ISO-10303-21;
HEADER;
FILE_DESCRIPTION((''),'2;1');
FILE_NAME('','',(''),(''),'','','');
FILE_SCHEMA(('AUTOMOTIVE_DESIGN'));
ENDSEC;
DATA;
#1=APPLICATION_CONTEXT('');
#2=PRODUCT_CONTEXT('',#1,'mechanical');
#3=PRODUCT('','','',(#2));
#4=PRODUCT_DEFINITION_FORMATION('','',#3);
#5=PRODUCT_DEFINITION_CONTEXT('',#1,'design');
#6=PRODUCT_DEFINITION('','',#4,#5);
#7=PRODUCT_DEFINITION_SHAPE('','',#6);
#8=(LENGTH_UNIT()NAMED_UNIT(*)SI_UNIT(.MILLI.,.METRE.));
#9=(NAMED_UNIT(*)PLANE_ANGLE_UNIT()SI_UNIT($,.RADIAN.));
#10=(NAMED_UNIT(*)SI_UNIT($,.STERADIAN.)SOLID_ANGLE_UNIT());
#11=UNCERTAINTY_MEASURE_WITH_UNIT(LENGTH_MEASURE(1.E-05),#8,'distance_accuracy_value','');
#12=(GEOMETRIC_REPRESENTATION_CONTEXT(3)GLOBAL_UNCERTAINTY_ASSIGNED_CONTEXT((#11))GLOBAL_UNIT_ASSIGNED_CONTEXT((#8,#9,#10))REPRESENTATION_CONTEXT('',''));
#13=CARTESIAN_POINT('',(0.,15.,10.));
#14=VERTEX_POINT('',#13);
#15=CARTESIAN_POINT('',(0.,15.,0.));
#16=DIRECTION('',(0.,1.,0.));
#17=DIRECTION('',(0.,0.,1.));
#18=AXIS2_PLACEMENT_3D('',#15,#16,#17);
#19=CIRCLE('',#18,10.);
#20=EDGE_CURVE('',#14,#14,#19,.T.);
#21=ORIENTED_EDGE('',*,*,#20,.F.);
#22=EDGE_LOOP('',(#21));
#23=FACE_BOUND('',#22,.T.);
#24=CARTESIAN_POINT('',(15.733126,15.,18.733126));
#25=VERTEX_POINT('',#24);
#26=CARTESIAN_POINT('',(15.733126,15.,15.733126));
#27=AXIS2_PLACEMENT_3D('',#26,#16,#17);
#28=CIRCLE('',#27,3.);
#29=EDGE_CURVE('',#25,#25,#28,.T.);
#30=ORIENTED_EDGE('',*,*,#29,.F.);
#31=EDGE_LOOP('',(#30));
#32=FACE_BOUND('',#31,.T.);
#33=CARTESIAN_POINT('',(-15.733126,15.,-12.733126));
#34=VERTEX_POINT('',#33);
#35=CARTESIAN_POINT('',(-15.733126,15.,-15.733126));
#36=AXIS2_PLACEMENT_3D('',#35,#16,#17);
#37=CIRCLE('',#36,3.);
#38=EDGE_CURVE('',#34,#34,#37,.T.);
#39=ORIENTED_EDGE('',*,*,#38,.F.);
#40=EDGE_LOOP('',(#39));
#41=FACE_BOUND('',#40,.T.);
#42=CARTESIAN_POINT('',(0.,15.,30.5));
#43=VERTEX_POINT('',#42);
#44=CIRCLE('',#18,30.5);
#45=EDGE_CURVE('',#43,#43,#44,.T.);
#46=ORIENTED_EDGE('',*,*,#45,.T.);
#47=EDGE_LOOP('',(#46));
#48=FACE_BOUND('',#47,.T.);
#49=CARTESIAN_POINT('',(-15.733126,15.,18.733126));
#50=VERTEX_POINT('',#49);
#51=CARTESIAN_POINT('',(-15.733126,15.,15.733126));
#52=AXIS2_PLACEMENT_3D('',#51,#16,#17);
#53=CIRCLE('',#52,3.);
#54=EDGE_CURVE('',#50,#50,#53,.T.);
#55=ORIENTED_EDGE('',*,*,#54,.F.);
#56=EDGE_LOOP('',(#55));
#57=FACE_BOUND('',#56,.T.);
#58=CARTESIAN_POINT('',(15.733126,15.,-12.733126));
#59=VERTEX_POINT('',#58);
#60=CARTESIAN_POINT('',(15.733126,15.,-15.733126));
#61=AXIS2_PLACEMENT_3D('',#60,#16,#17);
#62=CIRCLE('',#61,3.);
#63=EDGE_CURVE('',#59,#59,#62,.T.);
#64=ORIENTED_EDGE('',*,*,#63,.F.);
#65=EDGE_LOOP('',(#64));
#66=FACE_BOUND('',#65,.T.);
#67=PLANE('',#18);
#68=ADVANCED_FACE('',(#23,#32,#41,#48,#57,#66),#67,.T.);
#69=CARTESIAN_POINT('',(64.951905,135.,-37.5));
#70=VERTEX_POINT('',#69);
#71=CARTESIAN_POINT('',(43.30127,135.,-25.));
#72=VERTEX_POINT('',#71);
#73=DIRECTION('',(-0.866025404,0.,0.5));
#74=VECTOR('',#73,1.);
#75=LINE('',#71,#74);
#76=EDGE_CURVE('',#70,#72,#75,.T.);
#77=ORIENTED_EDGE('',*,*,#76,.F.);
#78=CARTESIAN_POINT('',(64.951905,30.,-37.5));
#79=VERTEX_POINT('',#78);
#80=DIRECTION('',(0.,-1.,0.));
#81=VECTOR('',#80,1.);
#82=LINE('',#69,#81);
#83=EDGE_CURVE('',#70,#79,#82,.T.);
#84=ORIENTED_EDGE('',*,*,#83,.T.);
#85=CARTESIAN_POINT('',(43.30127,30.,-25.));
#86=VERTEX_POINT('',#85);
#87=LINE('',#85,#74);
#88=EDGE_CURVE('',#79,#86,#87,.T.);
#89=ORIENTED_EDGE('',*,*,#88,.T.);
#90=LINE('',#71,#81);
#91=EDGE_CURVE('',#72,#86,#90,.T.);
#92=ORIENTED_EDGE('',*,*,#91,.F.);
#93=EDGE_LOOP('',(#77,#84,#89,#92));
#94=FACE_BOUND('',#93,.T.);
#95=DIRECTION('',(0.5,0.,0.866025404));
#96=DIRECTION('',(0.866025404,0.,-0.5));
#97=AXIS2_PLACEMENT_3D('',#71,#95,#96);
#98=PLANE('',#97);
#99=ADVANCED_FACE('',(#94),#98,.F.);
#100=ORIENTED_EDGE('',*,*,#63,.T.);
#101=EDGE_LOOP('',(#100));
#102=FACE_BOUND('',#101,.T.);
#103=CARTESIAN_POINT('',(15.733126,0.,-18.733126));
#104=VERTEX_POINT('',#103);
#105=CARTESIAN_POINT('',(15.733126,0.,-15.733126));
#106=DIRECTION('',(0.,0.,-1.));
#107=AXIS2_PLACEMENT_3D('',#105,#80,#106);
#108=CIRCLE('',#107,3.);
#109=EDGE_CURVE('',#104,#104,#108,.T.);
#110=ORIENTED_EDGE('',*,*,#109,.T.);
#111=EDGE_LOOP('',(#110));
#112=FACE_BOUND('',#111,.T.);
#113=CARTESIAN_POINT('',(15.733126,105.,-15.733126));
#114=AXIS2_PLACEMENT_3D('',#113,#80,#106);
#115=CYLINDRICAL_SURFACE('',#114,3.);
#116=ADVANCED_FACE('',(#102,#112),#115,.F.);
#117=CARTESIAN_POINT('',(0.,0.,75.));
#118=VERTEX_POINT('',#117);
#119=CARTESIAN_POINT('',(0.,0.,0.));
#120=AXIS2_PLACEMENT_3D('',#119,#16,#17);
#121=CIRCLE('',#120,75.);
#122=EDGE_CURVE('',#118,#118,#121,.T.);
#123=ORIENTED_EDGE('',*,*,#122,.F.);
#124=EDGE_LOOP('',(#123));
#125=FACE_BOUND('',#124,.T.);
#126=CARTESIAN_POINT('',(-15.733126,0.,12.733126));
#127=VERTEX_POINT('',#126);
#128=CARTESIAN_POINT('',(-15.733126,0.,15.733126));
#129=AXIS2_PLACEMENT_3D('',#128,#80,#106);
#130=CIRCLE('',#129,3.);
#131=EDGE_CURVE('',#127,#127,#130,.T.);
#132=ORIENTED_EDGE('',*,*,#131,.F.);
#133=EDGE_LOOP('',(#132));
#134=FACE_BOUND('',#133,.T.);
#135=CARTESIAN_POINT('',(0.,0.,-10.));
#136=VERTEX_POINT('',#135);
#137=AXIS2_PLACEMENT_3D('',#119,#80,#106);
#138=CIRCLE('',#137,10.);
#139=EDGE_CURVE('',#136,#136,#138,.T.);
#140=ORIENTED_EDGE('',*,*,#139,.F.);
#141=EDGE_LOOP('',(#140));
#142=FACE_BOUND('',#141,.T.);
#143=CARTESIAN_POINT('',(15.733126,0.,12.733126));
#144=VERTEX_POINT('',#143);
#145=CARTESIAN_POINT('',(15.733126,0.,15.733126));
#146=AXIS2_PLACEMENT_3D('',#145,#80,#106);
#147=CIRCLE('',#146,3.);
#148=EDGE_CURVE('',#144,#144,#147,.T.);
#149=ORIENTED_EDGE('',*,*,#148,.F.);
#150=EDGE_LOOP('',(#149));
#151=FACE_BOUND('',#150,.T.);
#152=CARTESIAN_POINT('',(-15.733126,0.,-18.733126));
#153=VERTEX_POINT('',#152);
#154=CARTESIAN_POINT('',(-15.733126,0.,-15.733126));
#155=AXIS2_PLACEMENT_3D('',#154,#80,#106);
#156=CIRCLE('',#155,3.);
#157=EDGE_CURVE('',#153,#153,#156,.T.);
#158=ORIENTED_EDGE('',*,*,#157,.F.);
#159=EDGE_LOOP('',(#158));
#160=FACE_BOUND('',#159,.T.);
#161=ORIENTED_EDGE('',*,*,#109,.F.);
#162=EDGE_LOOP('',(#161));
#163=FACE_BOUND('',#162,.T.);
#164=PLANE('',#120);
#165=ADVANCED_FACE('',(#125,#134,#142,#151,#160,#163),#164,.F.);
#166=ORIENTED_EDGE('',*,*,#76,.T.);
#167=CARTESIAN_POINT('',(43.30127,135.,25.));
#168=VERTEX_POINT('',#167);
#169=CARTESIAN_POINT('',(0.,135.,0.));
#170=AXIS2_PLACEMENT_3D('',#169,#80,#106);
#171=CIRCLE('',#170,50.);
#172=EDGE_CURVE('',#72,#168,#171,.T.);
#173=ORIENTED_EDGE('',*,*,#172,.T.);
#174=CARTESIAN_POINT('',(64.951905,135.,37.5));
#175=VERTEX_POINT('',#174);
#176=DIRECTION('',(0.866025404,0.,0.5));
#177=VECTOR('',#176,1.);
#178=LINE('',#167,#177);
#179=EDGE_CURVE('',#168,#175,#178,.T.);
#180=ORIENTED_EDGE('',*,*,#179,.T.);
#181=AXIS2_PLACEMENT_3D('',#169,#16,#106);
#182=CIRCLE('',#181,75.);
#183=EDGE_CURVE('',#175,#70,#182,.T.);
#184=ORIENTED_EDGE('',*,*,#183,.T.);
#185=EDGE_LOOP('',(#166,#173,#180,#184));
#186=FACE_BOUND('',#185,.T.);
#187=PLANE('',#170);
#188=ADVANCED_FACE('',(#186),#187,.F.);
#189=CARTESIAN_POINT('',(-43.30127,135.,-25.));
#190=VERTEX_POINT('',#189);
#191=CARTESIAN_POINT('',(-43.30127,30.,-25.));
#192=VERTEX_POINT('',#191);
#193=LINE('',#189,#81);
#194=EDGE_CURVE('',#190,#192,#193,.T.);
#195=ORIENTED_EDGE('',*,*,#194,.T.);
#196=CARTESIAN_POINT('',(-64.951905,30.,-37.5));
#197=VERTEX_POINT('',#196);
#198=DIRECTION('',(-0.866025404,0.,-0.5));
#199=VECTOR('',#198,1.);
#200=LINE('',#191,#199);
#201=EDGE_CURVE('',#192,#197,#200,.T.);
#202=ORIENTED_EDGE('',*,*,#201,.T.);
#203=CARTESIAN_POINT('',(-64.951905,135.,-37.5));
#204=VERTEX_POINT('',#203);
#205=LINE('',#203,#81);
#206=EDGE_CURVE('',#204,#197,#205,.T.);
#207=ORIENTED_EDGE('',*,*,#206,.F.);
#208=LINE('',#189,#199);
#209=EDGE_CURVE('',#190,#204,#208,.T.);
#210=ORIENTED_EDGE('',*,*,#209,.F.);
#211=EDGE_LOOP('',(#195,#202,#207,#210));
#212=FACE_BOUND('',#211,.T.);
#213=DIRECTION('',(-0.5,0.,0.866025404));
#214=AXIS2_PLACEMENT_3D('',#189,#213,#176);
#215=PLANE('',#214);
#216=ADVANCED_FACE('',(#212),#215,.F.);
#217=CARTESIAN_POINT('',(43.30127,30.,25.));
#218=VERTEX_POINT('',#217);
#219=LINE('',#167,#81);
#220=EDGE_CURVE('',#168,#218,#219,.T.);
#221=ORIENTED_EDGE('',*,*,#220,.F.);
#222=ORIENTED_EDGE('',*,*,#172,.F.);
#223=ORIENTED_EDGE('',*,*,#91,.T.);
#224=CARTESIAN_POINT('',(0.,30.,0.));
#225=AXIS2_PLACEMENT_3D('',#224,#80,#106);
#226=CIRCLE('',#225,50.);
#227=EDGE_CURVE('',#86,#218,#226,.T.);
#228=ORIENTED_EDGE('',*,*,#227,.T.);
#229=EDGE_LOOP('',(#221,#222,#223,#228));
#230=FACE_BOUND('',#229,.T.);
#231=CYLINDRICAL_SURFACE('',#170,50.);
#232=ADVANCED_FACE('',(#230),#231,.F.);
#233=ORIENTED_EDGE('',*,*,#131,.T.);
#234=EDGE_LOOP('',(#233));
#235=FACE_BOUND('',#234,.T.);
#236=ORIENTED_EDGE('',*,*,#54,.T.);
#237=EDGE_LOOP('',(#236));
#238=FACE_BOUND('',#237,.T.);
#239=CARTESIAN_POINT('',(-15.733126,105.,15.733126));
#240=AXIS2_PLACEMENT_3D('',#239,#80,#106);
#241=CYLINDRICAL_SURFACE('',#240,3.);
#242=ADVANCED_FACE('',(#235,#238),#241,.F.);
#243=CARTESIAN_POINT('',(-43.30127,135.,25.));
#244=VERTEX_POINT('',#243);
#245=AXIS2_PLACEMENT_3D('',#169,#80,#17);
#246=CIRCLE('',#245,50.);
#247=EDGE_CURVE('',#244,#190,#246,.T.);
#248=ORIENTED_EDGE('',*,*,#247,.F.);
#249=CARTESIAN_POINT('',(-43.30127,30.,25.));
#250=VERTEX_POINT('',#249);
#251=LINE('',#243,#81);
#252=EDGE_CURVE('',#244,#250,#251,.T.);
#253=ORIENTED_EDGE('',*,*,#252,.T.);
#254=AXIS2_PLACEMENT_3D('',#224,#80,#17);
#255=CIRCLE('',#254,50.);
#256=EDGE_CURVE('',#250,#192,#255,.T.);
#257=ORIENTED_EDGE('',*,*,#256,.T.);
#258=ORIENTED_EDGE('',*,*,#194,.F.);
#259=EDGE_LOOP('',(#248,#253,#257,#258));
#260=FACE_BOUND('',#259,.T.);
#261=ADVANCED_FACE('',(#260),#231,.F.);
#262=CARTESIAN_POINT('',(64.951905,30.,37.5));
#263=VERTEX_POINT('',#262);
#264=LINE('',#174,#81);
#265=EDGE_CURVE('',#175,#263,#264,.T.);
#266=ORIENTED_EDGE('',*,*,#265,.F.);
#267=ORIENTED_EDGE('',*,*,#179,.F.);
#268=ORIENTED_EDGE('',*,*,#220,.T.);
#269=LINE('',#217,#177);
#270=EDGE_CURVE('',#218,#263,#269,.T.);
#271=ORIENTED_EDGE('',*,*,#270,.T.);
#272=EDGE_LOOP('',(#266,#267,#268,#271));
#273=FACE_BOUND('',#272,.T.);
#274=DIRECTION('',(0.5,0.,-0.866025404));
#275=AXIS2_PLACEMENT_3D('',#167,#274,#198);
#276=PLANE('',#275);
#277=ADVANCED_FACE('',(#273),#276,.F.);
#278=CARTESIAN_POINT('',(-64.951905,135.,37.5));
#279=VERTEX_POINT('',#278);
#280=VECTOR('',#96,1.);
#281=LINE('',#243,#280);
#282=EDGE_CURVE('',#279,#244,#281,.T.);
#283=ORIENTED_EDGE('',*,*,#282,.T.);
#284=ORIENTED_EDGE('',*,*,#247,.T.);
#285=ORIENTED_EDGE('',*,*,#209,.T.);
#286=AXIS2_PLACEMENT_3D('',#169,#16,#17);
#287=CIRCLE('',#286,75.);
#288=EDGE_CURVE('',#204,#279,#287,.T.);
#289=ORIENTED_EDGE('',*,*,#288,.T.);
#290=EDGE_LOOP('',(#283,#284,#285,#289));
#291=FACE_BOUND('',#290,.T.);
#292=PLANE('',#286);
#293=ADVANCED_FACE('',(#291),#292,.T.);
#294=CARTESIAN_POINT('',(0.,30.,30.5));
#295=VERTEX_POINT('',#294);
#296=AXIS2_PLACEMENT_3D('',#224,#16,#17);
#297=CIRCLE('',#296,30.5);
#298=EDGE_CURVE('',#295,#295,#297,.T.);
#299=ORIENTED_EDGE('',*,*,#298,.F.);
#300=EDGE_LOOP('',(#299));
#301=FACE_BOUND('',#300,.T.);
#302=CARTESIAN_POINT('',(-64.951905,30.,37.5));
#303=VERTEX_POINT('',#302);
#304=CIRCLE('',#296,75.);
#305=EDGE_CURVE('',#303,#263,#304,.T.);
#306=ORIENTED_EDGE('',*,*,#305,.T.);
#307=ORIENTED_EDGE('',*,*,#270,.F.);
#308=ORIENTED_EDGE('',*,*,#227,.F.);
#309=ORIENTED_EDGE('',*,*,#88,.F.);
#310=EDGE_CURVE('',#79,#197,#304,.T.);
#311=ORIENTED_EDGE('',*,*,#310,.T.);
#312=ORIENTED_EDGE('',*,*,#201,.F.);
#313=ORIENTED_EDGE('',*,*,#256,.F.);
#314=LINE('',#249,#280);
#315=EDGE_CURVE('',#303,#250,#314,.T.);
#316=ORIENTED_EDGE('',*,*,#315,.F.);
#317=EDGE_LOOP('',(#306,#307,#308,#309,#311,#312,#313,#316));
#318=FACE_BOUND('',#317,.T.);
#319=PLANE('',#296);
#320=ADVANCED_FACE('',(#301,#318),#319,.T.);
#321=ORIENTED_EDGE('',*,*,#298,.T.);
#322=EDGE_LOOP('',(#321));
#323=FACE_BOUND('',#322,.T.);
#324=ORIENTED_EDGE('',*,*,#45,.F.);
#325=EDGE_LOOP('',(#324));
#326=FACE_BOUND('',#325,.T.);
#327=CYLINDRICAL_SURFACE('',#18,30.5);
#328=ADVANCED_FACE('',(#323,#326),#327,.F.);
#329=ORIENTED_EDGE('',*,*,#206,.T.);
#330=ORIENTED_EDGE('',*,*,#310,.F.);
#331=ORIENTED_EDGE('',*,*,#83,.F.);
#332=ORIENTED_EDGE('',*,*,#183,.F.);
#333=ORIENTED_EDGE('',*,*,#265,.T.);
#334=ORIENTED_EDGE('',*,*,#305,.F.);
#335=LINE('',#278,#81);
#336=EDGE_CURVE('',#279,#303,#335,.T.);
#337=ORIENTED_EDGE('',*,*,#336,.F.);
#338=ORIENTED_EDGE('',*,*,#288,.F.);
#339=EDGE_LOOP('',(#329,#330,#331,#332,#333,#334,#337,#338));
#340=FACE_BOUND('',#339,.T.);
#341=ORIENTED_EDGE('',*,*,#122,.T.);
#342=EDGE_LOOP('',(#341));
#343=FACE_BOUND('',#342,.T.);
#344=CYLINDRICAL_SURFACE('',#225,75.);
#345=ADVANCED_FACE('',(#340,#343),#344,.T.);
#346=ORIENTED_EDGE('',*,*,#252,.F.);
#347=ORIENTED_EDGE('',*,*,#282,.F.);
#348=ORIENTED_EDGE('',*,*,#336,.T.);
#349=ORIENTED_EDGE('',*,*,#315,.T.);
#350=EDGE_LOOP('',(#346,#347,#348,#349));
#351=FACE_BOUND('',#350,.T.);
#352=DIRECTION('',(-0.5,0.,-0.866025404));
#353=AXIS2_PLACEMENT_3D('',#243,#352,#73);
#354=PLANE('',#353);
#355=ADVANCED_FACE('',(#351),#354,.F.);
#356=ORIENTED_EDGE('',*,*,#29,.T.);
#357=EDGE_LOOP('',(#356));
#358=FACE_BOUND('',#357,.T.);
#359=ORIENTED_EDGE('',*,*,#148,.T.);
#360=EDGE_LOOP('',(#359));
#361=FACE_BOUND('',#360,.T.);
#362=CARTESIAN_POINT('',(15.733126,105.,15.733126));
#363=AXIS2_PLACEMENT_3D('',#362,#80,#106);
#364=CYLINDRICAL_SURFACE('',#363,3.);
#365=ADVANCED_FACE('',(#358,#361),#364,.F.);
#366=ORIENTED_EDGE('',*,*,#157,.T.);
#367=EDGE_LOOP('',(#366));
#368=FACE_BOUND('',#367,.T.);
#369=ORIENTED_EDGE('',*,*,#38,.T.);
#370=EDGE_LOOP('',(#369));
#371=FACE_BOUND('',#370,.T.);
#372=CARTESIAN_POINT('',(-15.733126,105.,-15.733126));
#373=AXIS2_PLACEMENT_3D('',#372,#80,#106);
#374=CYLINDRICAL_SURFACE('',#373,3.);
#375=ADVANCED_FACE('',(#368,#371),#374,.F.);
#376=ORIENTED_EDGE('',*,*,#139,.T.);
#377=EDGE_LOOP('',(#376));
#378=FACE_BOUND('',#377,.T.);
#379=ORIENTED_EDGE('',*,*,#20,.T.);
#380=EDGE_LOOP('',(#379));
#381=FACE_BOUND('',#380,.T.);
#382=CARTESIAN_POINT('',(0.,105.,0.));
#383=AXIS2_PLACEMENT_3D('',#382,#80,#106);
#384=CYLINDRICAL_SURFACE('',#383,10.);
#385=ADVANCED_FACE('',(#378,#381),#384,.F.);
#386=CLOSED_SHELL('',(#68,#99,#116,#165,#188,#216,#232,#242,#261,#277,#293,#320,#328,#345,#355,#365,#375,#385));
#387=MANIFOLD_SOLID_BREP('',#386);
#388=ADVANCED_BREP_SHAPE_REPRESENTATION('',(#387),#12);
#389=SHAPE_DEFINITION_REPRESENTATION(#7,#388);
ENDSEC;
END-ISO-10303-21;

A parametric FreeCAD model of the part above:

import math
import FreeCAD as App
import Part
import Sketcher

V = App.Vector
Q = App.Units.Quantity

doc = App.newDocument("Part")
params = doc.addObject("Spreadsheet::Sheet", "Params")
for row, (alias, value) in enumerate([
    ("sketch1_diameter", "150 mm"),
    ("pad1_length", "30 mm"),
    ("sketch2_diameter", "61 mm"),
    ("pocket1_length", "15 mm"),
    ("sketch3_radius", "50 mm"),
    ("sketch3_radius2", "75 mm"),
    ("pad2_length", "105 mm"),
    ("sketch4_diameter", "20 mm"),
    ("pocket2_length", "105 mm"),
    ("sketch5_diameter", "6 mm"),
    ("pocket3_length", "105 mm"),
], start=1):
    params.set(f"A{row}", alias)
    params.set(f"B{row}", "=" + value)
    params.setAlias(f"B{row}", alias)

body = doc.addObject("PartDesign::Body", "Body")

# Sketch on XZ plane
sketch1 = doc.addObject("Sketcher::SketchObject", "Sketch")
body.addObject(sketch1)
sketch1.AttachmentSupport = (doc.XZ_Plane, [""])
sketch1.MapMode = "FlatFace"
sketch1.addGeometry(Part.Circle(V(0, 0, 0), V(0, 0, 1), 75), False)
sketch1.addConstraint([
    Sketcher.Constraint("Coincident", 0, 3, -1, 1),
    Sketcher.Constraint("Diameter", 0, 150.0),
])
sketch1.setExpression("Constraints[1]", "Params.sketch1_diameter")
pad1 = doc.addObject("PartDesign::Pad", "Pad")
body.addObject(pad1)
pad1.Profile = sketch1
pad1.setExpression("Length", "Params.pad1_length")
pad1.Reversed = True

# Sketch on XZ plane
sketch2 = doc.addObject("Sketcher::SketchObject", "Sketch001")
body.addObject(sketch2)
sketch2.AttachmentSupport = (doc.XZ_Plane, [""])
sketch2.MapMode = "FlatFace"
sketch2.AttachmentOffset = App.Placement(V(0, 0, -30), App.Rotation())
sketch2.addGeometry(Part.Circle(V(0, 0, 0), V(0, 0, 1), 30), False)
sketch2.addConstraint([
    Sketcher.Constraint("Coincident", 0, 3, -1, 1),
    Sketcher.Constraint("Diameter", 0, 61.0),
])
sketch2.setExpression("Constraints[1]", "Params.sketch2_diameter")
pocket1 = doc.addObject("PartDesign::Pocket", "Pocket")
body.addObject(pocket1)
pocket1.Profile = sketch2
pocket1.setExpression("Length", "Params.pocket1_length")
pocket1.Reversed = True

# Sketch on XZ plane
sketch3 = doc.addObject("Sketcher::SketchObject", "Sketch002")
body.addObject(sketch3)
sketch3.AttachmentSupport = (doc.XZ_Plane, [""])
sketch3.MapMode = "FlatFace"
sketch3.AttachmentOffset = App.Placement(V(0, 0, -30), App.Rotation())
sketch3.addGeometry([
    Part.LineSegment(V(65, -38, 0), V(43, -25, 0)),  # 0
    Part.ArcOfCircle(Part.Circle(V(0, 0, 0), V(0, 0, 1), 50), math.radians(-30), math.radians(30)),  # 1
    Part.LineSegment(V(43, 25, 0), V(65, 38, 0)),  # 2
    Part.ArcOfCircle(Part.Circle(V(0, 0, 0), V(0, 0, 1), 75), math.radians(-30), math.radians(30)),  # 3
    Part.LineSegment(V(-65, 38, 0), V(-43, 25, 0)),  # 4
    Part.ArcOfCircle(Part.Circle(V(0, 0, 0), V(0, 0, 1), 50), math.radians(150), math.radians(210)),  # 5
    Part.LineSegment(V(-43, -25, 0), V(-65, -38, 0)),  # 6
    Part.ArcOfCircle(Part.Circle(V(0, 0, 0), V(0, 0, 1), 75), math.radians(150), math.radians(210)),  # 7
], False)
sketch3.addConstraint([
    Sketcher.Constraint("Coincident", 0, 2, 1, 1),
    Sketcher.Constraint("Coincident", 1, 2, 2, 1),
    Sketcher.Constraint("Coincident", 2, 2, 3, 2),
    Sketcher.Constraint("Coincident", 3, 1, 0, 1),
    Sketcher.Constraint("Coincident", 4, 2, 5, 1),
    Sketcher.Constraint("Coincident", 5, 2, 6, 1),
    Sketcher.Constraint("Coincident", 6, 2, 7, 2),
    Sketcher.Constraint("Coincident", 7, 1, 4, 1),
    Sketcher.Constraint("Coincident", 1, 3, -1, 1),
    Sketcher.Constraint("Coincident", 3, 3, -1, 1),
    Sketcher.Constraint("Coincident", 5, 3, -1, 1),
    Sketcher.Constraint("Coincident", 7, 3, -1, 1),
    Sketcher.Constraint("Equal", 1, 5),
    Sketcher.Constraint("Equal", 3, 7),
    Sketcher.Constraint("Parallel", 0, 4),
    Sketcher.Constraint("Parallel", 2, 6),
    Sketcher.Constraint("Horizontal", 1, 2, 4, 2),
    Sketcher.Constraint("Horizontal", 0, 2, 5, 2),
    Sketcher.Constraint("Horizontal", 3, 1, 6, 2),
    Sketcher.Constraint("Vertical", 0, 2, 1, 2),
    Sketcher.Constraint("Radius", 1, 50.0),
    Sketcher.Constraint("Radius", 3, 75.0),
    Sketcher.Constraint("Angle", 0, Q("150 deg")),
    Sketcher.Constraint("DistanceY", 0, 2, -1, 1, 25.0),
])
sketch3.setExpression("Constraints[20]", "Params.sketch3_radius")
sketch3.setExpression("Constraints[21]", "Params.sketch3_radius2")
pad2 = doc.addObject("PartDesign::Pad", "Pad001")
body.addObject(pad2)
pad2.Profile = sketch3
pad2.setExpression("Length", "Params.pad2_length")
pad2.Reversed = True

# Sketch on XZ plane
sketch4 = doc.addObject("Sketcher::SketchObject", "Sketch003")
body.addObject(sketch4)
sketch4.AttachmentSupport = (doc.XZ_Plane, [""])
sketch4.MapMode = "FlatFace"
sketch4.addGeometry(Part.Circle(V(0, 0, 0), V(0, 0, 1), 10), False)
sketch4.addConstraint([
    Sketcher.Constraint("Coincident", 0, 3, -1, 1),
    Sketcher.Constraint("Diameter", 0, 20.0),
])
sketch4.setExpression("Constraints[1]", "Params.sketch4_diameter")
pocket2 = doc.addObject("PartDesign::Pocket", "Pocket001")
body.addObject(pocket2)
pocket2.Profile = sketch4
pocket2.setExpression("Length", "Params.pocket2_length")

# Sketch on XZ plane
sketch5 = doc.addObject("Sketcher::SketchObject", "Sketch004")
body.addObject(sketch5)
sketch5.AttachmentSupport = (doc.XZ_Plane, [""])
sketch5.MapMode = "FlatFace"
sketch5.addGeometry([
    Part.Circle(V(-15.7, 15.7, 0), V(0, 0, 1), 3),
    Part.Circle(V(15.7, 15.7, 0), V(0, 0, 1), 3),
    Part.Circle(V(15.7, -15.7, 0), V(0, 0, 1), 3),
    Part.Circle(V(-15.7, -15.7, 0), V(0, 0, 1), 3),
], False)
sketch5.addConstraint([
    Sketcher.Constraint("Equal", 0, 1),
    Sketcher.Constraint("Equal", 1, 2),
    Sketcher.Constraint("Equal", 2, 3),
    Sketcher.Constraint("Symmetric", 0, 3, 2, 3, -1, 1),
    Sketcher.Constraint("Symmetric", 1, 3, 3, 3, -1, 1),
    Sketcher.Constraint("Symmetric", 0, 3, 1, 3, -2),
    Sketcher.Constraint("Diameter", 0, 6.0),
    Sketcher.Constraint("DistanceX", 0, 3, 1, 3, 31.466252),
    Sketcher.Constraint("DistanceY", 2, 3, 1, 3, 31.466252),
])
sketch5.setExpression("Constraints[6]", "Params.sketch5_diameter")
pocket3 = doc.addObject("PartDesign::Pocket", "Pocket002")
body.addObject(pocket3)
pocket3.Profile = sketch5
pocket3.setExpression("Length", "Params.pocket3_length")

doc.recompute()
